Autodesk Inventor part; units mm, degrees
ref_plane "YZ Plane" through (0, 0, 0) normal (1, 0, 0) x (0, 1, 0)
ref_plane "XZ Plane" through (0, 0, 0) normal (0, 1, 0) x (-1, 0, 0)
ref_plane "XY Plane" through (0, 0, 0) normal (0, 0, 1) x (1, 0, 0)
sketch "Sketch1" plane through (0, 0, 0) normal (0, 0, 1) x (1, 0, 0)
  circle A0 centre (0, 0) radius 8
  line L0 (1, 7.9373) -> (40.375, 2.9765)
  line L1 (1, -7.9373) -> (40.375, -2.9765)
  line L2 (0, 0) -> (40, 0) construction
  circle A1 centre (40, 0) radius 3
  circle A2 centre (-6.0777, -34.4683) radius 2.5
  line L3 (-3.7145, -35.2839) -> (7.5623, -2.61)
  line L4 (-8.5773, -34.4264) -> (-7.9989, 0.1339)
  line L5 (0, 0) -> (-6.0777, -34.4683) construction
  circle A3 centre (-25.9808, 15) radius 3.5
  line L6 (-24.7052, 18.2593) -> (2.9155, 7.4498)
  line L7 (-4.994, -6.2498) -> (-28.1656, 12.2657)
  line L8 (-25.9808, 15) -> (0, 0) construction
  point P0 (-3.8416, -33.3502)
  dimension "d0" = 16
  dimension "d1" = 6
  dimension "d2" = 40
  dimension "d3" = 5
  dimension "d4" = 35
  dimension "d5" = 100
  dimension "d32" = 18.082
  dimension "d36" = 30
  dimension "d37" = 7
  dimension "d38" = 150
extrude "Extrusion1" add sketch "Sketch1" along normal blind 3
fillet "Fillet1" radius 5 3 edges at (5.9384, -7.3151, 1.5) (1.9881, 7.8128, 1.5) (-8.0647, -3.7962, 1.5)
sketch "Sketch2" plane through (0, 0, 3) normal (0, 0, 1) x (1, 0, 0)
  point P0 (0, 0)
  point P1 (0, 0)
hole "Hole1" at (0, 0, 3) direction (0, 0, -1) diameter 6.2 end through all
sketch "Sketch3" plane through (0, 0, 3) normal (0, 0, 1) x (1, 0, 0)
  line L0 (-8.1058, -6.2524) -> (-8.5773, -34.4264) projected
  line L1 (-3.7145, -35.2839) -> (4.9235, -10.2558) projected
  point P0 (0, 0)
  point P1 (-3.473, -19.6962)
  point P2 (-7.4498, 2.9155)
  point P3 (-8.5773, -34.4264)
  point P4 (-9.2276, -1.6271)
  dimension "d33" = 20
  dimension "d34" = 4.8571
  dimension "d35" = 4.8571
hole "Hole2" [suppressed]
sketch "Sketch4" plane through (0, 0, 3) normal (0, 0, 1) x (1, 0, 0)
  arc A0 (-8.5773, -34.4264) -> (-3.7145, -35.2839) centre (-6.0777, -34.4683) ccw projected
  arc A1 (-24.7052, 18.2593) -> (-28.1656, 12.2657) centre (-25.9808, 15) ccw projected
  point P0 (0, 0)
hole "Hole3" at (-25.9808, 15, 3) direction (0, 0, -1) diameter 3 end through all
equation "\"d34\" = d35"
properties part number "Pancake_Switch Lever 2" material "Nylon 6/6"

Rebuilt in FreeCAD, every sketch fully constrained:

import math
import FreeCAD as App
import Part
import Sketcher

V = App.Vector
Q = App.Units.Quantity


def edges_at(feature, points):
    """Names of the edges that pass closest to the given points."""
    edges = feature.Shape.Edges
    near = lambda p: min(range(len(edges)), key=lambda i: edges[i].distToShape(Part.Vertex(*p))[0])
    return sorted({f"Edge{near(p) + 1}" for p in points})

doc = App.newDocument("Part")
params = doc.addObject("Spreadsheet::Sheet", "Params")
for row, (alias, value) in enumerate([
    ("sketch1_radius", "3 mm"),
    ("sketch1_radius2", "3.5 mm"),
    ("sketch1_radius3", "2.5 mm"),
    ("sketch1_length", "25.73 mm"),
    ("pad1_length", "3 mm"),
    ("fillet_radius", "5 mm"),
    ("sketch2_diameter", "6.2 mm"),
    ("hole_diameter", "6.2 mm"),
    ("sketch3_diameter", "3 mm"),
    ("hole2_diameter", "3 mm"),
], start=1):
    params.set(f"A{row}", alias)
    params.set(f"B{row}", "=" + value)
    params.setAlias(f"B{row}", alias)

body = doc.addObject("PartDesign::Body", "Body")

# Sketch on XY plane
sketch1 = body.newObject("Sketcher::SketchObject", "Sketch")
sketch1.AttachmentSupport = (doc.getObject("XY_Plane"), [""])
sketch1.MapMode = "FlatFace"
sketch1.addGeometry([
    Part.LineSegment(V(40.375, 2.9765, 0), V(1.987844, 7.812843, 0)),  # 0
    Part.LineSegment(V(1.987844, 7.812843, 0), V(-24.7052, 18.2593, 0)),  # 1
    Part.ArcOfCircle(Part.Circle(V(-25.9808, 15, 0), V(0, 0, 1), 3.5), math.radians(68.625997), math.radians(231.373939)),  # 2
    Part.LineSegment(V(-28.1656, 12.2657, 0), V(-8.064673, -3.796148, 0)),  # 3
    Part.LineSegment(V(-8.064673, -3.796148, 0), V(-8.5773, -34.4264, 0)),  # 4
    Part.ArcOfCircle(Part.Circle(V(-6.0777, -34.4683, 0), V(0, 0, 1), 2.5), math.radians(179.039659), math.radians(340.959153)),  # 5
    Part.LineSegment(V(-3.7145, -35.2839, 0), V(5.938415, -7.315116, 0)),  # 6
    Part.LineSegment(V(5.938415, -7.315116, 0), V(40.375, -2.9765, 0)),  # 7
    Part.ArcOfCircle(Part.Circle(V(40, 0, 0), V(0, 0, 1), 3), math.radians(-82.819315), math.radians(82.819315)),  # 8
], False)
sketch1.addConstraint([
    Sketcher.Constraint("Coincident", 0, 2, 1, 1),
    Sketcher.Constraint("Tangent", 1, 2, 2, 1),
    Sketcher.Constraint("Tangent", 2, 2, 3, 1),
    Sketcher.Constraint("Coincident", 3, 2, 4, 1),
    Sketcher.Constraint("Tangent", 4, 2, 5, 1),
    Sketcher.Constraint("Tangent", 5, 2, 6, 1),
    Sketcher.Constraint("Coincident", 6, 2, 7, 1),
    Sketcher.Constraint("Tangent", 7, 2, 8, 1),
    Sketcher.Constraint("Tangent", 8, 2, 0, 1),
    Sketcher.Constraint("Symmetric", 7, 2, 8, 2, -1),
    Sketcher.Constraint("Radius", 8, 3.0),
    Sketcher.Constraint("Radius", 2, 3.5),
    Sketcher.Constraint("Radius", 5, 2.5),
    Sketcher.Constraint("DistanceX", -1, 1, 8, 3, 40.0),
    Sketcher.Constraint("DistanceY", -1, 1, 2, 3, 15.0),
    Sketcher.Constraint("Angle", 0, Q("172.8192 deg")),
    Sketcher.Constraint("Angle", 4, Q("-90.9588 deg")),
    Sketcher.Constraint("Angle", 6, Q("70.9588 deg")),
    Sketcher.Constraint("Distance", 3, 25.73),
    Sketcher.Constraint("DistanceY", 5, 2, -1, 1, 35.284),
    Sketcher.Constraint("DistanceY", 6, 2, -1, 1, 7.315),
    Sketcher.Constraint("DistanceX", 2, 3, 5, 3, 19.903),
    Sketcher.Constraint("DistanceX", 1, 2, 0, 2, 26.693),
])
sketch1.setExpression("Constraints[10]", "Params.sketch1_radius")
sketch1.setExpression("Constraints[11]", "Params.sketch1_radius2")
sketch1.setExpression("Constraints[12]", "Params.sketch1_radius3")
sketch1.setExpression("Constraints[18]", "Params.sketch1_length")
pad1 = body.newObject("PartDesign::Pad", "Pad")
pad1.Profile = sketch1
pad1.setExpression("Length", "Params.pad1_length")
doc.recompute()

fillet = body.newObject("PartDesign::Fillet", "Fillet")
fillet.Base = (pad1, edges_at(pad1, [(5.938, -7.315, 1.5), (1.988, 7.813, 1.5), (-8.065, -3.796, 1.5)]))
fillet.setExpression("Radius", "Params.fillet_radius")

# Sketch on XY plane
sketch2 = body.newObject("Sketcher::SketchObject", "Sketch001")
sketch2.AttachmentSupport = (doc.getObject("XY_Plane"), [""])
sketch2.MapMode = "FlatFace"
sketch2.AttachmentOffset = App.Placement(V(0, 0, 3), App.Rotation())
sketch2.addGeometry(Part.Circle(V(0, 0, 0), V(0, 0, 1), 3.1), False)
sketch2.addConstraint([
    Sketcher.Constraint("Coincident", 0, 3, -1, 1),
    Sketcher.Constraint("Diameter", 0, 6.2),
])
sketch2.setExpression("Constraints[1]", "Params.sketch2_diameter")
doc.recompute()
hole = body.newObject("PartDesign::Hole", "Hole")
hole.Profile = sketch2
hole.ThreadType = "None"
hole.setExpression("Diameter", "Params.hole_diameter")
hole.DepthType = "ThroughAll"

# Sketch on XY plane
sketch3 = body.newObject("Sketcher::SketchObject", "Sketch002")
sketch3.AttachmentSupport = (doc.getObject("XY_Plane"), [""])
sketch3.MapMode = "FlatFace"
sketch3.AttachmentOffset = App.Placement(V(0, 0, 3), App.Rotation())
sketch3.addGeometry(Part.Circle(V(-25.9808, 15, 0), V(0, 0, 1), 1.5), False)
sketch3.addConstraint([
    Sketcher.Constraint("Diameter", 0, 3.0),
    Sketcher.Constraint("DistanceY", -1, 1, 0, 3, 15.0),
    Sketcher.Constraint("DistanceX", 0, 3, -1, 1, 25.9808),
])
sketch3.setExpression("Constraints[0]", "Params.sketch3_diameter")
doc.recompute()
hole2 = body.newObject("PartDesign::Hole", "Hole001")
hole2.Profile = sketch3
hole2.ThreadType = "None"
hole2.setExpression("Diameter", "Params.hole2_diameter")
hole2.DepthType = "ThroughAll"

doc.recompute()
